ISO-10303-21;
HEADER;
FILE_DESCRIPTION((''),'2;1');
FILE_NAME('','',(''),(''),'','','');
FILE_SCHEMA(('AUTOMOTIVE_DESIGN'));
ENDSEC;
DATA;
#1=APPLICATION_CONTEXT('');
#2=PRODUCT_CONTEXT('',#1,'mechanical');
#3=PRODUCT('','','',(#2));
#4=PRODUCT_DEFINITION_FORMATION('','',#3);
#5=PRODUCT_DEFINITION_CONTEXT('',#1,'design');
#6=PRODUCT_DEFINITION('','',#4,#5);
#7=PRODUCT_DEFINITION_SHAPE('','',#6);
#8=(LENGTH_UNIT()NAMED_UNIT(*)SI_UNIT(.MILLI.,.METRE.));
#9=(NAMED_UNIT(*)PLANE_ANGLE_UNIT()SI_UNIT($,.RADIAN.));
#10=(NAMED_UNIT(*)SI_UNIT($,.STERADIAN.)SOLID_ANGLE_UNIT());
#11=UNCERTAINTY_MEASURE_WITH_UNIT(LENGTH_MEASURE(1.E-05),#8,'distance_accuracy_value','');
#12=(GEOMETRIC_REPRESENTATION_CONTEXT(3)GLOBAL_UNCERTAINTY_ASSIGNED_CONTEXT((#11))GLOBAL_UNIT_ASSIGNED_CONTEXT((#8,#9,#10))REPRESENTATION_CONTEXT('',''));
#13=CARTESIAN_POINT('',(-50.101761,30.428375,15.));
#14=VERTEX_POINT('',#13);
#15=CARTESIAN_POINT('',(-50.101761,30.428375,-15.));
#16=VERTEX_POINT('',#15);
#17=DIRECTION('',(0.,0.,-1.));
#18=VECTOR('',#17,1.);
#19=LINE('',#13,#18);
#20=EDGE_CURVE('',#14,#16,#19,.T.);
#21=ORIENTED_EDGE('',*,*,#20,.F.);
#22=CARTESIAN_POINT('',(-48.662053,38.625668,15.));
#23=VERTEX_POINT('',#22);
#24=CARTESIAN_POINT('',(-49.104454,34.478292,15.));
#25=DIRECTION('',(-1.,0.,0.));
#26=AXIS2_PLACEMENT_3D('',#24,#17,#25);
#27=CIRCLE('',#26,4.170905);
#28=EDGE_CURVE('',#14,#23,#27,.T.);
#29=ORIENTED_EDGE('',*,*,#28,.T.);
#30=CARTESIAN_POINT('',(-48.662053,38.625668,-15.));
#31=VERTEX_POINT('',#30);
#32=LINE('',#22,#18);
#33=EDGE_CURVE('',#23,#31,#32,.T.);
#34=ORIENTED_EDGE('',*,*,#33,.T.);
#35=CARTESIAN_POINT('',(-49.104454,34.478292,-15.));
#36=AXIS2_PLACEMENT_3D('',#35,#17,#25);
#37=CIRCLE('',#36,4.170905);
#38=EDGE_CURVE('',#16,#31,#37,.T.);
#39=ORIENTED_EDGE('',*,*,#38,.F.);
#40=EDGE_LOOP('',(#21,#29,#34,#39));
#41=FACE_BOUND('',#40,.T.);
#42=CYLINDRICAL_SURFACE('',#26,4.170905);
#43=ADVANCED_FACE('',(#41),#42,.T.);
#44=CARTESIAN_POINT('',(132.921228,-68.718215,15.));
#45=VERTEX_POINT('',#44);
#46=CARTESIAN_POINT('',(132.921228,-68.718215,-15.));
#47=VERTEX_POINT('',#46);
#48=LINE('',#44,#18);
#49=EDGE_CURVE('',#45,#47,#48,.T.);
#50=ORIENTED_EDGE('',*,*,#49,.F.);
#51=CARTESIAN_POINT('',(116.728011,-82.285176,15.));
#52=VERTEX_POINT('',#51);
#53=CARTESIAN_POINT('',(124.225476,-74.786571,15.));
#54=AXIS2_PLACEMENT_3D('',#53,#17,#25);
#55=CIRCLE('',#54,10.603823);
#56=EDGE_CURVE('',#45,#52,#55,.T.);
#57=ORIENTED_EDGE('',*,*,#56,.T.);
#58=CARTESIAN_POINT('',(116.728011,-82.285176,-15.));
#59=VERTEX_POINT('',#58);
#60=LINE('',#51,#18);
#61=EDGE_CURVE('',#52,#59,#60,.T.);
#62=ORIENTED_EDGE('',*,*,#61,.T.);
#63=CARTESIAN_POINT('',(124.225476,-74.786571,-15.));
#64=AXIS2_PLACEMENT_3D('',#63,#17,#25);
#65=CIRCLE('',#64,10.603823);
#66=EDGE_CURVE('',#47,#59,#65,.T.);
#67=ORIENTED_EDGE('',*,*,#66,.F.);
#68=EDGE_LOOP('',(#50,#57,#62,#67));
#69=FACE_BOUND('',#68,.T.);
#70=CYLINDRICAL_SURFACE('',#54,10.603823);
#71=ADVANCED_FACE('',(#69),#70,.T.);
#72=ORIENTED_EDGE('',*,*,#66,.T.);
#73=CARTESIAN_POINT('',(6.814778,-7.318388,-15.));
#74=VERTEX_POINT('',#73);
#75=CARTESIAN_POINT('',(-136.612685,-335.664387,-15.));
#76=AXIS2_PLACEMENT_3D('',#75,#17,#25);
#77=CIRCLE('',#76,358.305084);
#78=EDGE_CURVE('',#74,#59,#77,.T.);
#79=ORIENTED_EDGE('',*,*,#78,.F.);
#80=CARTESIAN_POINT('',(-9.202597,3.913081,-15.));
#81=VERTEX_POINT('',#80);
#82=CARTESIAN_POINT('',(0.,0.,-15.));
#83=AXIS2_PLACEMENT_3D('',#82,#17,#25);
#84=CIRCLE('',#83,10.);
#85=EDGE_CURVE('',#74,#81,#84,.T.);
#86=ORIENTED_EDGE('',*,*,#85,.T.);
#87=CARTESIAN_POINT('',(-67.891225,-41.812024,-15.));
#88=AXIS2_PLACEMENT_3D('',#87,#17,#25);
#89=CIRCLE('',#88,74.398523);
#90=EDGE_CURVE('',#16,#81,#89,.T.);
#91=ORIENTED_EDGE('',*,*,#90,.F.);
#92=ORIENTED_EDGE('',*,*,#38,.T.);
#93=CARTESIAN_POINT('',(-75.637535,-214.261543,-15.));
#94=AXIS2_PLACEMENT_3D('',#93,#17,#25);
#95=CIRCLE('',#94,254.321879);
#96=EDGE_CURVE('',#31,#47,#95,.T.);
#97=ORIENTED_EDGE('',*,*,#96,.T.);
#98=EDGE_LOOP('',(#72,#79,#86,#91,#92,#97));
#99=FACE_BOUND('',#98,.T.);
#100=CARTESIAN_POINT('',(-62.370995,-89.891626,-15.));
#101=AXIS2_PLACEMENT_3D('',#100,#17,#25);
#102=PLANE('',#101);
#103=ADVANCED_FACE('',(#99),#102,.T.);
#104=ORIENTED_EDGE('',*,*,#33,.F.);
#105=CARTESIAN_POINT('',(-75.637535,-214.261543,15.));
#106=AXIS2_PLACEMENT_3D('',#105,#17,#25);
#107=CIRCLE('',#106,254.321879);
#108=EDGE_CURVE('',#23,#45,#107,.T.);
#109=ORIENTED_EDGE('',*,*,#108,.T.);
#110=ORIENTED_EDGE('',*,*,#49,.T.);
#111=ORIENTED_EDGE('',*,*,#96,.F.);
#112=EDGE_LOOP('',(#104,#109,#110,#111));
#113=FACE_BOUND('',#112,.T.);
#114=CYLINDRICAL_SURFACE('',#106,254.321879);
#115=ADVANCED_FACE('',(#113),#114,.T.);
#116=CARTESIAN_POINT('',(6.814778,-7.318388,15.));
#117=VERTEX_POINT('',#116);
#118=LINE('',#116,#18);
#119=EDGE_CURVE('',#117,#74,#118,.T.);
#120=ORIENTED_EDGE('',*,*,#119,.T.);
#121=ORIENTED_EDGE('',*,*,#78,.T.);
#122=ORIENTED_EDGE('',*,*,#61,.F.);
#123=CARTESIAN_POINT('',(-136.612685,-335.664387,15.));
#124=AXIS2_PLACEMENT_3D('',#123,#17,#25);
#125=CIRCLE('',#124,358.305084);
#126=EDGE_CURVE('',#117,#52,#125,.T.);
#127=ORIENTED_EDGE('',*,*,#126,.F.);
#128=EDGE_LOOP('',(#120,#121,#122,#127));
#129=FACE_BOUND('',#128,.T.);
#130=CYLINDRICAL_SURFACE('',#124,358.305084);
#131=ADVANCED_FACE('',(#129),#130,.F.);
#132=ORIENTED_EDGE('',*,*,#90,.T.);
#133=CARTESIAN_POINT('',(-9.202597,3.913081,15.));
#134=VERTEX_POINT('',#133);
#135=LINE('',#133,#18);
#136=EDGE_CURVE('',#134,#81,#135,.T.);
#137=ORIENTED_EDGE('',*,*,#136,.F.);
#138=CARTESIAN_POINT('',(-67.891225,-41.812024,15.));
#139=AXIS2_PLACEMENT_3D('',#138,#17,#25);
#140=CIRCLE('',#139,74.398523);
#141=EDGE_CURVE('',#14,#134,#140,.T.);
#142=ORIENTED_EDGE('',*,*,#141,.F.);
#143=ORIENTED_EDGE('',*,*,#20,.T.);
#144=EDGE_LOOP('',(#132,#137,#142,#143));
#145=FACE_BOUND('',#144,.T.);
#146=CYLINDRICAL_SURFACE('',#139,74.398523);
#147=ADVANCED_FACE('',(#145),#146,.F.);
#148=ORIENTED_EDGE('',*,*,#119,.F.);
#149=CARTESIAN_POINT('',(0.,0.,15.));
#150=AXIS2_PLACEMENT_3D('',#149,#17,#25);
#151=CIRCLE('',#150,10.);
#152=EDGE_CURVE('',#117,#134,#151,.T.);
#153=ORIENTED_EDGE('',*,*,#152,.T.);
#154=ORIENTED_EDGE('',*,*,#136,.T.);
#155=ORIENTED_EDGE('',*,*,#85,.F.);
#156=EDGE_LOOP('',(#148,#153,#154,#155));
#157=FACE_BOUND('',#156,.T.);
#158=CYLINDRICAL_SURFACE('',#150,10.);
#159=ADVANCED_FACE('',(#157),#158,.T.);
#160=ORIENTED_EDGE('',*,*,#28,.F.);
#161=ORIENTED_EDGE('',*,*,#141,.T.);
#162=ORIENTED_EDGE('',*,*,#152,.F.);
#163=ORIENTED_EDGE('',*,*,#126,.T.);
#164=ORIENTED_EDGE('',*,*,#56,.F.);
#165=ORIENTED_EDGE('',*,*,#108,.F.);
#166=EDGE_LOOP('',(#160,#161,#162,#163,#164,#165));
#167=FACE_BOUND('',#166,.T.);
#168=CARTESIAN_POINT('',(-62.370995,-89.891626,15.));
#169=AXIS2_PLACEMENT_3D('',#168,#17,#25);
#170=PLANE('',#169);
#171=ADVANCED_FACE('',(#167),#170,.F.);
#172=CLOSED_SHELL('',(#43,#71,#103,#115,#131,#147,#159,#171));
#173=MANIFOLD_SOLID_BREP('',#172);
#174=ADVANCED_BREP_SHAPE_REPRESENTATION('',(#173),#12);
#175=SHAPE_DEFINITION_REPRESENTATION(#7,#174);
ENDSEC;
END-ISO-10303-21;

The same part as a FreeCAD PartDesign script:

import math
import FreeCAD as App
import Part
import Sketcher

V = App.Vector
Q = App.Units.Quantity

doc = App.newDocument("Part")
body = doc.addObject("PartDesign::Body", "Body")

# Sketch on XY plane
sketch1 = body.newObject("Sketcher::SketchObject", "Sketch")
sketch1.AttachmentSupport = (doc.getObject("XY_Plane"), [""])
sketch1.MapMode = "FlatFace"
sketch1.addGeometry([
    Part.ArcOfCircle(Part.Circle(V(-49.1, 34.5, 0), V(0, 0, 1), 4.2), math.radians(84), math.radians(256)),  # 0
    Part.ArcOfCircle(Part.Circle(V(-67.9, -41.8, 0), V(0, 0, 1), 74.4), math.radians(38), math.radians(76)),  # 1
    Part.ArcOfCircle(Part.Circle(V(0, 0, 0), V(0, 0, 1), 10), math.radians(157), math.radians(313)),  # 2
    Part.ArcOfCircle(Part.Circle(V(-136.6, -335.7, 0), V(0, 0, 1), 358.3), math.radians(45), math.radians(66)),  # 3
    Part.ArcOfCircle(Part.Circle(V(124.2, -74.8, 0), V(0, 0, 1), 10.6), math.radians(-135), math.radians(35)),  # 4
    Part.ArcOfCircle(Part.Circle(V(-75.6, -214.3, 0), V(0, 0, 1), 254.3), math.radians(35), math.radians(84)),  # 5
], False)
sketch1.addConstraint([
    Sketcher.Constraint("Tangent", 0, 2, 1, 2),
    Sketcher.Constraint("Coincident", 1, 1, 2, 1),
    Sketcher.Constraint("Coincident", 2, 2, 3, 2),
    Sketcher.Constraint("Tangent", 3, 1, 4, 1),
    Sketcher.Constraint("Tangent", 4, 2, 5, 1),
    Sketcher.Constraint("Tangent", 5, 2, 0, 1),
    Sketcher.Constraint("Coincident", 2, 3, -1, 1),
    Sketcher.Constraint("Radius", 2, Q("10 mm")),
    Sketcher.Constraint("Radius", 5, Q("254.321879 mm")),
    Sketcher.Constraint("Radius", 0, Q("4.170905 mm")),
    Sketcher.Constraint("Radius", 1, Q("74.398523 mm")),
    Sketcher.Constraint("Radius", 3, Q("358.305084 mm")),
    Sketcher.Constraint("Radius", 4, Q("10.603823 mm")),
    Sketcher.Constraint("DistanceX", 1, 3, 4, 3, Q("192.1167 mm")),
    Sketcher.Constraint("DistanceY", 1, 3, 0, 2, Q("72.240399 mm")),
    Sketcher.Constraint("DistanceY", -1, 1, 0, 3, Q("34.478292 mm")),
    Sketcher.Constraint("DistanceY", 4, 3, -1, 1, Q("74.786571 mm")),
    Sketcher.Constraint("DistanceX", 0, 2, -1, 1, Q("50.101761 mm")),
    Sketcher.Constraint("DistanceX", -1, 1, 2, 2, Q("6.814778 mm")),
])
pad1 = body.newObject("PartDesign::Pad", "Pad")
pad1.Profile = sketch1
pad1.Length = 30
pad1.Midplane = True

doc.recompute()
